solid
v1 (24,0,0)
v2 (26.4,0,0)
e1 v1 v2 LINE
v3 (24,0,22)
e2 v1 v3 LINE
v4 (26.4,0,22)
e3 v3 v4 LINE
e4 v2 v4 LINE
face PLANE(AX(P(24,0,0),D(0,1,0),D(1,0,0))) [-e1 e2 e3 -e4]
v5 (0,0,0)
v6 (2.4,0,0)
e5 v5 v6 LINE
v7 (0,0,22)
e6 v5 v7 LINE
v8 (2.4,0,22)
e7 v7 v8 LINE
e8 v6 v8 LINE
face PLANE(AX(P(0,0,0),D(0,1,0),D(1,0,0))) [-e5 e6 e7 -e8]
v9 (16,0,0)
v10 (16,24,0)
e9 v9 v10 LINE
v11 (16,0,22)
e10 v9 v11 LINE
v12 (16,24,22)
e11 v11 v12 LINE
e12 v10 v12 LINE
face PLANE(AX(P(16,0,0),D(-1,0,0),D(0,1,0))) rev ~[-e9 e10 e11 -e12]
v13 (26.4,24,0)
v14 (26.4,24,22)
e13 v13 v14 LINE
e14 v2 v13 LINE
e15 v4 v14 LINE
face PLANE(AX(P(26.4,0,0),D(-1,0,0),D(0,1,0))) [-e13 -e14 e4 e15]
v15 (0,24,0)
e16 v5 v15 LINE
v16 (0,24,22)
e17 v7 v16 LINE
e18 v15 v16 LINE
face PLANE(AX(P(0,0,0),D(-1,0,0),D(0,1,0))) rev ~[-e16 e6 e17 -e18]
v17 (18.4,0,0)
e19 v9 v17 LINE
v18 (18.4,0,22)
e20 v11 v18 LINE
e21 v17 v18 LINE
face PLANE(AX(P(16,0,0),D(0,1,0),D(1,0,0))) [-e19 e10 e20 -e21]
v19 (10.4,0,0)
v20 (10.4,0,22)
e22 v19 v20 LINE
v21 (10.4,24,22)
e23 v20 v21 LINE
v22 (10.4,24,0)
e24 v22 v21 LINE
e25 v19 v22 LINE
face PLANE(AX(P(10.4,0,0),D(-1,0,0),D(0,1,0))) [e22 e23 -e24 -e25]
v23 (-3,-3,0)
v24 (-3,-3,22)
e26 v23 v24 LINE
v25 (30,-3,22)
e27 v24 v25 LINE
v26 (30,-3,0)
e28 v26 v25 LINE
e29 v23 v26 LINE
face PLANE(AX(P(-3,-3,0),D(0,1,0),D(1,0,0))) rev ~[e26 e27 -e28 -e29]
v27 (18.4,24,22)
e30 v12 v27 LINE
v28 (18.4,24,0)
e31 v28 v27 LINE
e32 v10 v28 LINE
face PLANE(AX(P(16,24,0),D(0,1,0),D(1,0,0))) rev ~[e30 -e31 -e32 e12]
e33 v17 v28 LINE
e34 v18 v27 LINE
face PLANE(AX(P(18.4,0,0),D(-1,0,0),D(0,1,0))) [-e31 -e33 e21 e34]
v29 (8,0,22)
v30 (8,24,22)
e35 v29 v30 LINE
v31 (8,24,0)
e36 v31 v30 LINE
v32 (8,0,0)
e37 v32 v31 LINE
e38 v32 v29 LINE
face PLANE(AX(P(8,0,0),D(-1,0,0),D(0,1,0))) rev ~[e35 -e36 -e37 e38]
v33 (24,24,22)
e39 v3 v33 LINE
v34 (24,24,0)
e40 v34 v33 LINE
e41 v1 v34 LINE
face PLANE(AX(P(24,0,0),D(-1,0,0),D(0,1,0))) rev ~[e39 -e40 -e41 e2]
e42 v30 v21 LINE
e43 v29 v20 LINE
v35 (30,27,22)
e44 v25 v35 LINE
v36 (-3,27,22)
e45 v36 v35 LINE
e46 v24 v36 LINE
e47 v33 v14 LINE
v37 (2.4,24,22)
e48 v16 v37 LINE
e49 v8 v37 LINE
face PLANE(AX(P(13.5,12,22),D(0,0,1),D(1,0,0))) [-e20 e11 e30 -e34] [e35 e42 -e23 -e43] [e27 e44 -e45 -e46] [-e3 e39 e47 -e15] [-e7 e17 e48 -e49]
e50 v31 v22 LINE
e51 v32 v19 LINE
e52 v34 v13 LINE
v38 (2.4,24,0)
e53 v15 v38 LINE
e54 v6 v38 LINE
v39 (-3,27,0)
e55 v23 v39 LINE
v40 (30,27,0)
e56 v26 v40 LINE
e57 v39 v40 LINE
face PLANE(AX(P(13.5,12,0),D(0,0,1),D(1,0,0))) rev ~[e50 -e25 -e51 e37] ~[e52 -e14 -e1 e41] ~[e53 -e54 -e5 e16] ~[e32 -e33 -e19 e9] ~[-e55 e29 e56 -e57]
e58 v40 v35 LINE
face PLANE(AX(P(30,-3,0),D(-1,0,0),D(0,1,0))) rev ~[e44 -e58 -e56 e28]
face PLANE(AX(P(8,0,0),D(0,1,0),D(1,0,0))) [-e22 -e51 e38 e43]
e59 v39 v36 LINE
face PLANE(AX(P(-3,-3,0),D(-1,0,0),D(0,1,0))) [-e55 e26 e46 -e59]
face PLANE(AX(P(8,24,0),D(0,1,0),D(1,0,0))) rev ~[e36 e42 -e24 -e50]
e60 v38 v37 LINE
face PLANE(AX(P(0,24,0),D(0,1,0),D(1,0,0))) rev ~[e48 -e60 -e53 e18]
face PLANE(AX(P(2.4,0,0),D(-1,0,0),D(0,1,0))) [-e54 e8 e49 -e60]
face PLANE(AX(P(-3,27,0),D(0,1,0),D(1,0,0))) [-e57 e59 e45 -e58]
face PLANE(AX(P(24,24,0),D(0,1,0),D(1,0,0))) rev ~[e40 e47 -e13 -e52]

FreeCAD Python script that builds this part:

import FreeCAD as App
import Part
import Sketcher
from FreeCAD import Vector

doc = App.newDocument("Part")
body = doc.addObject("PartDesign::Body", "Body")

sketch1 = body.newObject("Sketcher::SketchObject", "Sketch")
sketch1.AttachmentSupport = (doc.getObject("XY_Plane"), [""])
sketch1.MapMode = "FlatFace"
sketch1.addGeometry([
    Part.LineSegment(Vector(24, 24, 0), Vector(24, 0, 0)),
    Part.LineSegment(Vector(24, 0, 0), Vector(26.4, 0, 0)),
    Part.LineSegment(Vector(26.4, 0, 0), Vector(26.4, 24, 0)),
    Part.LineSegment(Vector(26.4, 24, 0), Vector(24, 24, 0)),
], False)
sketch1.addConstraint([
    Sketcher.Constraint("Coincident", 0, 2, 1, 1),
    Sketcher.Constraint("Coincident", 1, 2, 2, 1),
    Sketcher.Constraint("Coincident", 2, 2, 3, 1),
    Sketcher.Constraint("Coincident", 3, 2, 0, 1),
    Sketcher.Constraint("Vertical", 0),
    Sketcher.Constraint("Horizontal", 1),
    Sketcher.Constraint("Vertical", 2),
    Sketcher.Constraint("Horizontal", 3),
    Sketcher.Constraint("PointOnObject", 0, 2, -1),
    Sketcher.Constraint("DistanceY", 0, 2, 0, 1, 24.0),
    Sketcher.Constraint("DistanceX", 1, 1, 1, 2, 2.4),
    Sketcher.Constraint("DistanceX", -1, 1, 0, 2, 24.0),
])
pad1 = body.newObject("PartDesign::Pad", "Pad")
pad1.Profile = sketch1
pad1.Length = 22
body2 = doc.addObject("PartDesign::Body", "Body001")

sketch2 = body2.newObject("Sketcher::SketchObject", "Sketch001")
sketch2.AttachmentSupport = (doc.getObject("XY_Plane001"), [""])
sketch2.MapMode = "FlatFace"
sketch2.addGeometry([
    Part.LineSegment(Vector(8, 24, 0), Vector(8, 0, 0)),
    Part.LineSegment(Vector(8, 0, 0), Vector(10.4, 0, 0)),
    Part.LineSegment(Vector(10.4, 0, 0), Vector(10.4, 24, 0)),
    Part.LineSegment(Vector(10.4, 24, 0), Vector(8, 24, 0)),
], False)
sketch2.addConstraint([
    Sketcher.Constraint("Coincident", 0, 2, 1, 1),
    Sketcher.Constraint("Coincident", 1, 2, 2, 1),
    Sketcher.Constraint("Coincident", 2, 2, 3, 1),
    Sketcher.Constraint("Coincident", 3, 2, 0, 1),
    Sketcher.Constraint("Vertical", 0),
    Sketcher.Constraint("Horizontal", 1),
    Sketcher.Constraint("Vertical", 2),
    Sketcher.Constraint("Horizontal", 3),
    Sketcher.Constraint("PointOnObject", 0, 2, -1),
    Sketcher.Constraint("DistanceY", 0, 2, 0, 1, 24.0),
    Sketcher.Constraint("DistanceX", 1, 1, 1, 2, 2.4),
    Sketcher.Constraint("DistanceX", -1, 1, 0, 2, 8.0),
])
pad2 = body2.newObject("PartDesign::Pad", "Pad001")
pad2.Profile = sketch2
pad2.Length = 22
body3 = doc.addObject("PartDesign::Body", "Body002")
body3.AllowCompound = True

sketch3 = body3.newObject("Sketcher::SketchObject", "Sketch002")
sketch3.AttachmentSupport = (doc.getObject("XY_Plane002"), [""])
sketch3.MapMode = "FlatFace"
sketch3.addGeometry([
    Part.LineSegment(Vector(0, 24, 0), Vector(0, 0, 0)),
    Part.LineSegment(Vector(0, 0, 0), Vector(2.4, 0, 0)),
    Part.LineSegment(Vector(2.4, 0, 0), Vector(2.4, 24, 0)),
    Part.LineSegment(Vector(2.4, 24, 0), Vector(0, 24, 0)),
], False)
sketch3.addConstraint([
    Sketcher.Constraint("Coincident", 0, 2, 1, 1),
    Sketcher.Constraint("Coincident", 1, 2, 2, 1),
    Sketcher.Constraint("Coincident", 2, 2, 3, 1),
    Sketcher.Constraint("Coincident", 3, 2, 0, 1),
    Sketcher.Constraint("Vertical", 0),
    Sketcher.Constraint("Horizontal", 1),
    Sketcher.Constraint("Vertical", 2),
    Sketcher.Constraint("Horizontal", 3),
    Sketcher.Constraint("Coincident", 0, 2, -1, 1),
    Sketcher.Constraint("DistanceY", 0, 2, 0, 1, 24.0),
    Sketcher.Constraint("DistanceX", 1, 1, 1, 2, 2.4),
])
pad3 = body3.newObject("PartDesign::Pad", "Pad002")
pad3.Profile = sketch3
pad3.Length = 22
doc.recompute()

boolean = body3.newObject("PartDesign::Boolean", "Boolean")
boolean.Type = "Fuse"
boolean.addObjects([body2])
body4 = doc.addObject("PartDesign::Body", "Body003")
body4.AllowCompound = True

sketch4 = body4.newObject("Sketcher::SketchObject", "Sketch003")
sketch4.AttachmentSupport = (doc.getObject("XY_Plane003"), [""])
sketch4.MapMode = "FlatFace"
sketch4.addGeometry([
    Part.LineSegment(Vector(16, 24, 0), Vector(16, 0, 0)),
    Part.LineSegment(Vector(16, 0, 0), Vector(18.4, 0, 0)),
    Part.LineSegment(Vector(18.4, 0, 0), Vector(18.4, 24, 0)),
    Part.LineSegment(Vector(18.4, 24, 0), Vector(16, 24, 0)),
], False)
sketch4.addConstraint([
    Sketcher.Constraint("Coincident", 0, 2, 1, 1),
    Sketcher.Constraint("Coincident", 1, 2, 2, 1),
    Sketcher.Constraint("Coincident", 2, 2, 3, 1),
    Sketcher.Constraint("Coincident", 3, 2, 0, 1),
    Sketcher.Constraint("Vertical", 0),
    Sketcher.Constraint("Horizontal", 1),
    Sketcher.Constraint("Vertical", 2),
    Sketcher.Constraint("Horizontal", 3),
    Sketcher.Constraint("PointOnObject", 0, 2, -1),
    Sketcher.Constraint("DistanceY", 0, 2, 0, 1, 24.0),
    Sketcher.Constraint("DistanceX", 1, 1, 1, 2, 2.4),
    Sketcher.Constraint("DistanceX", -1, 1, 0, 2, 16.0),
])
pad4 = body4.newObject("PartDesign::Pad", "Pad003")
pad4.Profile = sketch4
pad4.Length = 22
doc.recompute()

boolean2 = body4.newObject("PartDesign::Boolean", "Boolean001")
boolean2.Type = "Fuse"
boolean2.addObjects([body])
doc.recompute()

boolean3 = body4.newObject("PartDesign::Boolean", "Boolean002")
boolean3.Type = "Fuse"
boolean3.addObjects([body3])
body5 = doc.addObject("PartDesign::Body", "Body004")

sketch5 = body5.newObject("Sketcher::SketchObject", "Sketch004")
sketch5.AttachmentSupport = (doc.getObject("XY_Plane004"), [""])
sketch5.MapMode = "FlatFace"
sketch5.addGeometry([
    Part.LineSegment(Vector(-3, 27, 0), Vector(-3, -3, 0)),
    Part.LineSegment(Vector(-3, -3, 0), Vector(30, -3, 0)),
    Part.LineSegment(Vector(30, -3, 0), Vector(30, 27, 0)),
    Part.LineSegment(Vector(30, 27, 0), Vector(-3, 27, 0)),
], False)
sketch5.addConstraint([
    Sketcher.Constraint("Coincident", 0, 2, 1, 1),
    Sketcher.Constraint("Coincident", 1, 2, 2, 1),
    Sketcher.Constraint("Coincident", 2, 2, 3, 1),
    Sketcher.Constraint("Coincident", 3, 2, 0, 1),
    Sketcher.Constraint("Vertical", 0),
    Sketcher.Constraint("Horizontal", 1),
    Sketcher.Constraint("Vertical", 2),
    Sketcher.Constraint("Horizontal", 3),
    Sketcher.Constraint("DistanceX", 1, 1, 1, 2, 33.0),
    Sketcher.Constraint("DistanceY", 0, 2, 0, 1, 30.0),
    Sketcher.Constraint("DistanceX", 0, 2, -1, 1, 3.0),
    Sketcher.Constraint("DistanceY", 0, 2, -1, 1, 3.0),
])
pad5 = body5.newObject("PartDesign::Pad", "Pad004")
pad5.Profile = sketch5
pad5.Length = 22
doc.recompute()

boolean4 = body5.newObject("PartDesign::Boolean", "Boolean003")
boolean4.Type = "Cut"
boolean4.addObjects([body4])

doc.recompute()
